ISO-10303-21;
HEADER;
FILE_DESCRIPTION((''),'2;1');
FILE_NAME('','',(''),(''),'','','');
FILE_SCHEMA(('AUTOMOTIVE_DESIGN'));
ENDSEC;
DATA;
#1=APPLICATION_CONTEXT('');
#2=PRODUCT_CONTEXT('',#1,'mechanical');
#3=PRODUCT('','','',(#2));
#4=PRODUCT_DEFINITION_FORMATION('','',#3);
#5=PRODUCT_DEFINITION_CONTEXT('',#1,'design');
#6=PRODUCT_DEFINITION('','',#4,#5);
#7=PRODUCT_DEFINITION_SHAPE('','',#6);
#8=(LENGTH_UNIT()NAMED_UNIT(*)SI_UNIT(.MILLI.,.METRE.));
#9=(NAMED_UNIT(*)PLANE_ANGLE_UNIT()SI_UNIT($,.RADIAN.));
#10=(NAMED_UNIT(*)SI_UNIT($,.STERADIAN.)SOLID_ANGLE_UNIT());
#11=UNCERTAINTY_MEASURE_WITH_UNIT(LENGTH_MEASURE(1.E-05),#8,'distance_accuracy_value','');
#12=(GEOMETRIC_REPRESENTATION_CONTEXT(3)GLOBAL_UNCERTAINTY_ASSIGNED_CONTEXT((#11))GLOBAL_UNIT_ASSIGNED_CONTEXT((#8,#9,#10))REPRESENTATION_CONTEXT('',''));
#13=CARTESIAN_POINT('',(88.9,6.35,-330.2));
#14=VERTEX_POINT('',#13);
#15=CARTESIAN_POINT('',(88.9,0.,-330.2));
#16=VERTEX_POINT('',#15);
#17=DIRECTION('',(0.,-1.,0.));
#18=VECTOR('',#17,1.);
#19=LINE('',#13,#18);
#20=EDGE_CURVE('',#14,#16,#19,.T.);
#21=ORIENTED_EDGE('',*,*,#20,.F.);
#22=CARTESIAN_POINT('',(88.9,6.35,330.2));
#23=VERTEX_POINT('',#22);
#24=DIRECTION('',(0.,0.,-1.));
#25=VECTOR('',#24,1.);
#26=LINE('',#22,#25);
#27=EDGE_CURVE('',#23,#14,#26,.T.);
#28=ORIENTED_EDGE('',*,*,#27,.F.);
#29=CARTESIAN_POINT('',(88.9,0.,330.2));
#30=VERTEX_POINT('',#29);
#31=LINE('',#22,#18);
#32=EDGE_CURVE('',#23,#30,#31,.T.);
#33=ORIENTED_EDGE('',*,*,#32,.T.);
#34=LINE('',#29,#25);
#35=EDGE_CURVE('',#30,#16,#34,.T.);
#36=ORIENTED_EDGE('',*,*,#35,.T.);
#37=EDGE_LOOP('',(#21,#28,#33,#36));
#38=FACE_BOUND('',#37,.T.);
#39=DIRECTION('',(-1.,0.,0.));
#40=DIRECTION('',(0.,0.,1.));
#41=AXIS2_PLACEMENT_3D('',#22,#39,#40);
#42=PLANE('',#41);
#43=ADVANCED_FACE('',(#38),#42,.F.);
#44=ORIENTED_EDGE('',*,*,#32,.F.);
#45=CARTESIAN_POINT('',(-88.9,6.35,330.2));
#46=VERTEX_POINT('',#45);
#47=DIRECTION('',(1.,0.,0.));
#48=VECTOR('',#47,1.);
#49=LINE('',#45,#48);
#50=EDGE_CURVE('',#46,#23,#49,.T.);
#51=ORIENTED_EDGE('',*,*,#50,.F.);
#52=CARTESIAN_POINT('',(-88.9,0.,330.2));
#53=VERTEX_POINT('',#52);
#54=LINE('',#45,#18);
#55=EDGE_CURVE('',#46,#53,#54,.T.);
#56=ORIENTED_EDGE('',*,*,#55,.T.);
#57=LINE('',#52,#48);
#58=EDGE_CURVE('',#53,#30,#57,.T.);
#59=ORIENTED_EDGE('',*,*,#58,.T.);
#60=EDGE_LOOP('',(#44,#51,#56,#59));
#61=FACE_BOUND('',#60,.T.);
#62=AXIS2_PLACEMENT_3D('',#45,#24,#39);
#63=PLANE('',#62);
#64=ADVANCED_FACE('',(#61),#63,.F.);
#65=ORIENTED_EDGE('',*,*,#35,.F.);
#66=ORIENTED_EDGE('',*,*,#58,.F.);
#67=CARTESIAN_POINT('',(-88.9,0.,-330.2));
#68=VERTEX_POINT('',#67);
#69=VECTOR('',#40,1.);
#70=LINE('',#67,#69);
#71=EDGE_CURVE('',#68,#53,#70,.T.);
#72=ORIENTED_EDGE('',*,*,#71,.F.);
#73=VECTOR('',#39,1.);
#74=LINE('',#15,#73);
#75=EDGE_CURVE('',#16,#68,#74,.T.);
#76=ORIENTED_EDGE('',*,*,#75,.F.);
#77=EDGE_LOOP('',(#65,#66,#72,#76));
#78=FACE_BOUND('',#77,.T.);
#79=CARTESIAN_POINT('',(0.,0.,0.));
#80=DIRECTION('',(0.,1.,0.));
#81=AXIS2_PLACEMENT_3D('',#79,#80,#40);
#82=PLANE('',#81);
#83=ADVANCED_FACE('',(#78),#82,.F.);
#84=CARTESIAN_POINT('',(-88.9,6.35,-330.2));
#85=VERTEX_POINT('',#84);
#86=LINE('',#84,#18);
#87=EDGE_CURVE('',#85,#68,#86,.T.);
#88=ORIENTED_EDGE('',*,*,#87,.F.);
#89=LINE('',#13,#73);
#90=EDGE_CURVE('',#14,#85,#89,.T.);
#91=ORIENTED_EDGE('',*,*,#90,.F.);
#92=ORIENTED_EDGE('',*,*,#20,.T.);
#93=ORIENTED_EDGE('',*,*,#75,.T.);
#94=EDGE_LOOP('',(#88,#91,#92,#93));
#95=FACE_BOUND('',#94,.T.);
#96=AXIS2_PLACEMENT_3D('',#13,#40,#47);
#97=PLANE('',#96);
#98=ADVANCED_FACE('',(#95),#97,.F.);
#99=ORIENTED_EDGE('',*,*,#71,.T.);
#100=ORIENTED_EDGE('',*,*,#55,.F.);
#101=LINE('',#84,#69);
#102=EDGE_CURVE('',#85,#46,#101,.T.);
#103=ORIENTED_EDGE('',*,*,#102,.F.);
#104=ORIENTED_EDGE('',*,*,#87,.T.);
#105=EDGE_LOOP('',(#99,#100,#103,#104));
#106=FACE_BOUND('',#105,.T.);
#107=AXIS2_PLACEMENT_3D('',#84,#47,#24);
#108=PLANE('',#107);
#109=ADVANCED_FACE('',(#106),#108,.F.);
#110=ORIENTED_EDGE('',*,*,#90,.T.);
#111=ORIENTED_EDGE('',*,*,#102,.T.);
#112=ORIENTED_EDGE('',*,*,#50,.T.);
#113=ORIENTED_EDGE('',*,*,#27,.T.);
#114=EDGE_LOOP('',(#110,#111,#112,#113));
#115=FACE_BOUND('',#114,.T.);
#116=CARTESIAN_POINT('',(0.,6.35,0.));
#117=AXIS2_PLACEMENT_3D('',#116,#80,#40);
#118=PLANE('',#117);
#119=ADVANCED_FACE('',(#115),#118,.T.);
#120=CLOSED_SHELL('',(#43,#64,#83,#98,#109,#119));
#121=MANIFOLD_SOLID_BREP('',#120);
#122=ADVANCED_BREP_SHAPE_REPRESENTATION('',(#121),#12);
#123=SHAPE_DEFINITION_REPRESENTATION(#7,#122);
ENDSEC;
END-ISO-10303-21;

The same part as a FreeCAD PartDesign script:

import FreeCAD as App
import Part
import Sketcher
Q = App.Units.Quantity


def add_polygon(sketch, points):
    """Adds a closed chain of lines whose ends are joined by coincident constraints."""
    first, n = sketch.GeometryCount, len(points)
    for a, b in zip(points, points[1:] + points[:1]):
        sketch.addGeometry(Part.LineSegment(App.Vector(*a, 0), App.Vector(*b, 0)), False)
    for i in range(n):
        sketch.addConstraint(Sketcher.Constraint("Coincident", first + i, 2, first + (i + 1) % n, 1))

doc = App.newDocument("Part")
body = doc.addObject("PartDesign::Body", "Body")

# Sketch on XZ plane
sketch1 = body.newObject("Sketcher::SketchObject", "Sketch")
sketch1.AttachmentSupport = (doc.getObject("XZ_Plane"), [""])
sketch1.MapMode = "FlatFace"
add_polygon(sketch1, [(89, 330), (89, -330), (-89, -330), (-89, 330)])  # lines 0-3
sketch1.addConstraint(Sketcher.Constraint("Vertical", 0))
sketch1.addConstraint(Sketcher.Constraint("Horizontal", 1))
sketch1.addConstraint(Sketcher.Constraint("Vertical", 2))
sketch1.addConstraint(Sketcher.Constraint("Horizontal", 3))
sketch1.addConstraint(Sketcher.Constraint("Symmetric", 0, 2, 2, 2, -1, 1))
sketch1.addConstraint(Sketcher.Constraint("DistanceX", 1, 2, 1, 1, Q("7 in")))
sketch1.addConstraint(Sketcher.Constraint("DistanceY", 0, 2, 0, 1, Q("26 in")))
pad1 = body.newObject("PartDesign::Pad", "Pad")
pad1.Profile = sketch1
pad1.Length = Q("0.25 in")
pad1.Reversed = True

doc.recompute()
